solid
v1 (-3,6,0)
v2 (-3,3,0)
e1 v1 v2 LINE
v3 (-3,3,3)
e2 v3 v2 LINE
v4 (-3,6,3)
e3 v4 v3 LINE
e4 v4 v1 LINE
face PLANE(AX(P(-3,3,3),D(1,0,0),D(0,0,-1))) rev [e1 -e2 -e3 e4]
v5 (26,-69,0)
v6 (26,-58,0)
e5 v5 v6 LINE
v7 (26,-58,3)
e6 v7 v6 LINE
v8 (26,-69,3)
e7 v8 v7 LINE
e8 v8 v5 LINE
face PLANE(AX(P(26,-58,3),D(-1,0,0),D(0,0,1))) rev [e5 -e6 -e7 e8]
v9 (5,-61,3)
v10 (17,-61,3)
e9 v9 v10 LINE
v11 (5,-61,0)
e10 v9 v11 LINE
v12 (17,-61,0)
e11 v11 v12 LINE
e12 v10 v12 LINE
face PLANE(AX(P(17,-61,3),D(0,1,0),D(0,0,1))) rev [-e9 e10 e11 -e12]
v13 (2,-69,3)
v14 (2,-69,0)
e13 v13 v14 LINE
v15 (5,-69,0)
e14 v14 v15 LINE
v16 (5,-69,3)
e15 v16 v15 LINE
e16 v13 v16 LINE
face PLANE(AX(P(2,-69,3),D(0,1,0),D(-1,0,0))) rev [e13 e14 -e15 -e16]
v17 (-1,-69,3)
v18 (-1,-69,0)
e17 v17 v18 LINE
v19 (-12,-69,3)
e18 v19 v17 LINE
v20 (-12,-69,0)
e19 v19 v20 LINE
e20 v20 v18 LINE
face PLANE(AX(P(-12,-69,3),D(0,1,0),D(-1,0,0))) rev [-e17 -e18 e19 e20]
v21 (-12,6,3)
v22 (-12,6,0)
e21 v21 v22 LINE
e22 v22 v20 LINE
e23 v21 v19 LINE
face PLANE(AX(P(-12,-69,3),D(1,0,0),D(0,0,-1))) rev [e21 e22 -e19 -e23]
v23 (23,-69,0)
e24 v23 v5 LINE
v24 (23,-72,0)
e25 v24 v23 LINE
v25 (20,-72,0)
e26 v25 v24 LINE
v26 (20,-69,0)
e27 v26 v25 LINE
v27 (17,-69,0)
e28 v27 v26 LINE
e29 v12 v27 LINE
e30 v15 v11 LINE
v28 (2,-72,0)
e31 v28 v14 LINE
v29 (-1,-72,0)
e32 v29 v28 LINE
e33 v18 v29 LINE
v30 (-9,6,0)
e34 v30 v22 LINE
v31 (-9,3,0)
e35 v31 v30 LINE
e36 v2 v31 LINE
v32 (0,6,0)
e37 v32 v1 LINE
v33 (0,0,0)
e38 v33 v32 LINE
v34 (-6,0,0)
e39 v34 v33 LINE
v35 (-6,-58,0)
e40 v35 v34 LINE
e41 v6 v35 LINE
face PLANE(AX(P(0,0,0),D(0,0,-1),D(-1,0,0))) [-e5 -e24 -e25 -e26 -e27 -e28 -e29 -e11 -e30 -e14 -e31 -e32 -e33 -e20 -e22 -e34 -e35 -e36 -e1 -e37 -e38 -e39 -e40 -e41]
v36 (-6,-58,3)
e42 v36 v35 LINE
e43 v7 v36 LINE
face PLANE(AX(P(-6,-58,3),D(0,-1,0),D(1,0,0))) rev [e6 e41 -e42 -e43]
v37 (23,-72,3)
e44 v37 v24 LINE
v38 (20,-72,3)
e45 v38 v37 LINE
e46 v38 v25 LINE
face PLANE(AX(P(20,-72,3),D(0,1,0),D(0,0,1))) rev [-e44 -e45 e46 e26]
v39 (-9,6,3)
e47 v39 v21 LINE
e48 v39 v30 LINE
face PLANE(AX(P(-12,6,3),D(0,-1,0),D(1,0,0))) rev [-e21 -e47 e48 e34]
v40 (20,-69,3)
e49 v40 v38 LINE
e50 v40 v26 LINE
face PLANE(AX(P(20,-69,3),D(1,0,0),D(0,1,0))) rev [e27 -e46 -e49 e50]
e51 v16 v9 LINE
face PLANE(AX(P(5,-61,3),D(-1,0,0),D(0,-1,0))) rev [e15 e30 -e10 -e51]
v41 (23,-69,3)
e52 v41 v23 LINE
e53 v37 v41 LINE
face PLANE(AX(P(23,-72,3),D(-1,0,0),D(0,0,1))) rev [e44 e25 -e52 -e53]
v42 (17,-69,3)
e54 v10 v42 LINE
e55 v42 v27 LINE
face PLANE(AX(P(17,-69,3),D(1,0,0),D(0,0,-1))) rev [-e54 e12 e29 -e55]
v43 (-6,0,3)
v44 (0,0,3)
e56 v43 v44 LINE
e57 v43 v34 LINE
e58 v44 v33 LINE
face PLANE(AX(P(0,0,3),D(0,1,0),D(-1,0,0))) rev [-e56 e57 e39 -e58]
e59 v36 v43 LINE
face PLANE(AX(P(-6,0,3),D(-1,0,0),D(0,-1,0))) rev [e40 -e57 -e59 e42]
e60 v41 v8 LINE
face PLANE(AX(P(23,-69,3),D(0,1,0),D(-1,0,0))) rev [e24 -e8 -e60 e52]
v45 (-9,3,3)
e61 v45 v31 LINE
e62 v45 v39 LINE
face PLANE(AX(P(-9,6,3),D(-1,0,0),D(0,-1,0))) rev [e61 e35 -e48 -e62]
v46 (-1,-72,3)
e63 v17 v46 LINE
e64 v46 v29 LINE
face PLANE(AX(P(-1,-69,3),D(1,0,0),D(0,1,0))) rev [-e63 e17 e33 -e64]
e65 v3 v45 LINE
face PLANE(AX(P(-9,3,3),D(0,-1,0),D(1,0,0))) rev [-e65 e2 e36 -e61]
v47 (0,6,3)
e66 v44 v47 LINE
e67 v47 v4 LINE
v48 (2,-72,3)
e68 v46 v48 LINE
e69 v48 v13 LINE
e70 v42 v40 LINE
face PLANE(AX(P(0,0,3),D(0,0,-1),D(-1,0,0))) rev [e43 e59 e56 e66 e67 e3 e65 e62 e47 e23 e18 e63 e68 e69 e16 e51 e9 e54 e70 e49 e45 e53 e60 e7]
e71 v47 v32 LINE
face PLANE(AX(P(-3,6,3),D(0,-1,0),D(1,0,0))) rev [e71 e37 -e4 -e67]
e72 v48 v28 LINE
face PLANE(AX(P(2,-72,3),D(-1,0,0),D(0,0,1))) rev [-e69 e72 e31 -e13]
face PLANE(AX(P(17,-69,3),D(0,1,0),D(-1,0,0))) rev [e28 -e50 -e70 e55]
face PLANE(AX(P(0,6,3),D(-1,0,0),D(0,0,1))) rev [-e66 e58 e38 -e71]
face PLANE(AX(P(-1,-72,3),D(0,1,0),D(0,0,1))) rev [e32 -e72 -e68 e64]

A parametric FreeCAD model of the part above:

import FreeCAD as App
import Part
import Sketcher
from FreeCAD import Vector


def add_polygon(sketch, points):
    """Adds a closed chain of lines whose ends are joined by coincident constraints."""
    first, n = sketch.GeometryCount, len(points)
    for a, b in zip(points, points[1:] + points[:1]):
        sketch.addGeometry(Part.LineSegment(App.Vector(*a, 0), App.Vector(*b, 0)), False)
    for i in range(n):
        sketch.addConstraint(Sketcher.Constraint("Coincident", first + i, 2, first + (i + 1) % n, 1))

doc = App.newDocument("Part")
body = doc.addObject("PartDesign::Body", "Body")

# Sketch on XY plane
sketch1 = doc.addObject("Sketcher::SketchObject", "Sketch")
body.addObject(sketch1)
sketch1.AttachmentSupport = (doc.XY_Plane, [""])
sketch1.MapMode = "FlatFace"
add_polygon(sketch1, [(17, -61), (17, -69), (20, -69), (20, -72), (23, -72), (23, -69), (26, -69), (26, -58), (-6, -58), (-6, 0), (0, 0), (0, 6), (-3, 6), (-3, 3), (-9, 3), (-9, 6), (-12, 6), (-12, -69), (-1, -69), (-1, -72), (2, -72), (2, -69), (5, -69), (5, -61)])  # lines 0-23
sketch1.addConstraint(Sketcher.Constraint("Vertical", 0))
sketch1.addConstraint(Sketcher.Constraint("Horizontal", 1))
sketch1.addConstraint(Sketcher.Constraint("Vertical", 2))
sketch1.addConstraint(Sketcher.Constraint("Horizontal", 3))
sketch1.addConstraint(Sketcher.Constraint("Vertical", 4))
sketch1.addConstraint(Sketcher.Constraint("Horizontal", 5))
sketch1.addConstraint(Sketcher.Constraint("Vertical", 6))
sketch1.addConstraint(Sketcher.Constraint("Horizontal", 7))
sketch1.addConstraint(Sketcher.Constraint("Vertical", 8))
sketch1.addConstraint(Sketcher.Constraint("Horizontal", 9))
sketch1.addConstraint(Sketcher.Constraint("Vertical", 10))
sketch1.addConstraint(Sketcher.Constraint("Horizontal", 11))
sketch1.addConstraint(Sketcher.Constraint("Vertical", 12))
sketch1.addConstraint(Sketcher.Constraint("Horizontal", 13))
sketch1.addConstraint(Sketcher.Constraint("Vertical", 14))
sketch1.addConstraint(Sketcher.Constraint("Horizontal", 15))
sketch1.addConstraint(Sketcher.Constraint("Vertical", 16))
sketch1.addConstraint(Sketcher.Constraint("Horizontal", 17))
sketch1.addConstraint(Sketcher.Constraint("Vertical", 18))
sketch1.addConstraint(Sketcher.Constraint("Horizontal", 19))
sketch1.addConstraint(Sketcher.Constraint("Vertical", 20))
sketch1.addConstraint(Sketcher.Constraint("Horizontal", 21))
sketch1.addConstraint(Sketcher.Constraint("Vertical", 22))
sketch1.addConstraint(Sketcher.Constraint("Horizontal", 23))
sketch1.addConstraint(Sketcher.Constraint("Coincident", 9, 2, -1, 1))
sketch1.addConstraint(Sketcher.Constraint("Horizontal", 1, 2, 4, 2))
sketch1.addConstraint(Sketcher.Constraint("Horizontal", 11, 2, 14, 2))
sketch1.addConstraint(Sketcher.Constraint("Horizontal", 5, 2, 16, 2))
sketch1.addConstraint(Sketcher.Constraint("Horizontal", 3, 2, 18, 2))
sketch1.addConstraint(Sketcher.Constraint("Horizontal", 17, 2, 20, 2))
sketch1.addConstraint(Sketcher.Constraint("Equal", 1, 3))
sketch1.addConstraint(Sketcher.Constraint("Equal", 3, 5))
sketch1.addConstraint(Sketcher.Constraint("Equal", 5, 11))
sketch1.addConstraint(Sketcher.Constraint("Equal", 9, 13))
sketch1.addConstraint(Sketcher.Constraint("Equal", 11, 15))
sketch1.addConstraint(Sketcher.Constraint("Equal", 15, 19))
sketch1.addConstraint(Sketcher.Constraint("Equal", 19, 21))
sketch1.addConstraint(Sketcher.Constraint("Equal", 21, 2))
sketch1.addConstraint(Sketcher.Constraint("Equal", 17, 6))
sketch1.addConstraint(Sketcher.Constraint("Equal", 13, 10))
sketch1.addConstraint(Sketcher.Constraint("Equal", 4, 12))
sketch1.addConstraint(Sketcher.Constraint("DistanceX", 1, 1, 1, 2, 3.0))
sketch1.addConstraint(Sketcher.Constraint("DistanceX", 7, 2, 7, 1, 32.0))
sketch1.addConstraint(Sketcher.Constraint("DistanceX", 9, 1, 9, 2, 6.0))
sketch1.addConstraint(Sketcher.Constraint("DistanceX", 17, 1, 17, 2, 11.0))
sketch1.addConstraint(Sketcher.Constraint("DistanceY", 0, 2, 0, 1, 8.0))
sketch1.addConstraint(Sketcher.Constraint("DistanceY", 8, 1, 8, 2, 58.0))
pad1 = doc.addObject("PartDesign::Pad", "Pad")
body.addObject(pad1)
pad1.Profile = sketch1
pad1.Length = 3

doc.recompute()
